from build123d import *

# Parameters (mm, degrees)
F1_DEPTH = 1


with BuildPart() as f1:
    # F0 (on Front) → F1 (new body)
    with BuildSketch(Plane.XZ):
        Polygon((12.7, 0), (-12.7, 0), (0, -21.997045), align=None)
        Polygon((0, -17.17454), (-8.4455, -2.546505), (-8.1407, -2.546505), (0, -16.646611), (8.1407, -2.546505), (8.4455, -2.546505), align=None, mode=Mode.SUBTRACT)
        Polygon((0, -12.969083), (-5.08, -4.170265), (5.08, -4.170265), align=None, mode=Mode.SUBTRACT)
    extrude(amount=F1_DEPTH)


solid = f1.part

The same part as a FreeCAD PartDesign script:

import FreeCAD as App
import Part
import Sketcher
from FreeCAD import Vector
Q = App.Units.Quantity


def add_polygon(sketch, points):
    """Adds a closed chain of lines whose ends are joined by coincident constraints."""
    first, n = sketch.GeometryCount, len(points)
    for a, b in zip(points, points[1:] + points[:1]):
        sketch.addGeometry(Part.LineSegment(App.Vector(*a, 0), App.Vector(*b, 0)), False)
    for i in range(n):
        sketch.addConstraint(Sketcher.Constraint("Coincident", first + i, 2, first + (i + 1) % n, 1))

doc = App.newDocument("Part")
body = doc.addObject("PartDesign::Body", "Body")

# Sketch on XZ plane
sketch1 = doc.addObject("Sketcher::SketchObject", "Sketch")
body.addObject(sketch1)
sketch1.AttachmentSupport = (doc.XZ_Plane, [""])
sketch1.MapMode = "FlatFace"
add_polygon(sketch1, [(12.7, 0), (-12.7, 0), (0, -22)])  # lines 0-2
add_polygon(sketch1, [(8.45, -2.55), (0, -17.17), (-8.45, -2.55), (-8.14, -2.55), (0, -16.65), (8.14, -2.55)])  # lines 3-8
add_polygon(sketch1, [(5.08, -4.17), (0, -12.97), (-5.08, -4.17)])  # lines 9-11
sketch1.addConstraint(Sketcher.Constraint("Horizontal", 0))
sketch1.addConstraint(Sketcher.Constraint("Horizontal", 5))
sketch1.addConstraint(Sketcher.Constraint("Horizontal", 8))
sketch1.addConstraint(Sketcher.Constraint("Horizontal", 11))
sketch1.addConstraint(Sketcher.Constraint("Symmetric", 0, 2, 2, 2, -1, 1))
sketch1.addConstraint(Sketcher.Constraint("Symmetric", 5, 2, 7, 2, -2))
sketch1.addConstraint(Sketcher.Constraint("PointOnObject", 1, 2, -2))
sketch1.addConstraint(Sketcher.Constraint("PointOnObject", 3, 2, -2))
sketch1.addConstraint(Sketcher.Constraint("PointOnObject", 6, 2, -2))
sketch1.addConstraint(Sketcher.Constraint("PointOnObject", 9, 2, -2))
sketch1.addConstraint(Sketcher.Constraint("Parallel", 2, 3))
sketch1.addConstraint(Sketcher.Constraint("Parallel", 1, 4))
sketch1.addConstraint(Sketcher.Constraint("Parallel", 4, 6))
sketch1.addConstraint(Sketcher.Constraint("Parallel", 7, 9))
sketch1.addConstraint(Sketcher.Constraint("Parallel", 6, 10))
sketch1.addConstraint(Sketcher.Constraint("DistanceX", 0, 2, 0, 1, Q("1 in")))
sketch1.addConstraint(Sketcher.Constraint("Distance", 1, Q("1 in")))
sketch1.addConstraint(Sketcher.Constraint("DistanceX", 11, 1, 11, 2, Q("0.4 in")))
sketch1.addConstraint(Sketcher.Constraint("DistanceX", 5, 1, 5, 2, Q("0.012 in")))
sketch1.addConstraint(Sketcher.Constraint("Distance", 3, Q("0.665 in")))
sketch1.addConstraint(Sketcher.Constraint("DistanceY", 3, 2, -1, 1, Q("17.17454 mm")))
sketch1.addConstraint(Sketcher.Constraint("DistanceY", 6, 2, 9, 2, Q("3.677528 mm")))
pad1 = doc.addObject("PartDesign::Pad", "Pad")
body.addObject(pad1)
pad1.Profile = sketch1
pad1.Length = 1

doc.recompute()
